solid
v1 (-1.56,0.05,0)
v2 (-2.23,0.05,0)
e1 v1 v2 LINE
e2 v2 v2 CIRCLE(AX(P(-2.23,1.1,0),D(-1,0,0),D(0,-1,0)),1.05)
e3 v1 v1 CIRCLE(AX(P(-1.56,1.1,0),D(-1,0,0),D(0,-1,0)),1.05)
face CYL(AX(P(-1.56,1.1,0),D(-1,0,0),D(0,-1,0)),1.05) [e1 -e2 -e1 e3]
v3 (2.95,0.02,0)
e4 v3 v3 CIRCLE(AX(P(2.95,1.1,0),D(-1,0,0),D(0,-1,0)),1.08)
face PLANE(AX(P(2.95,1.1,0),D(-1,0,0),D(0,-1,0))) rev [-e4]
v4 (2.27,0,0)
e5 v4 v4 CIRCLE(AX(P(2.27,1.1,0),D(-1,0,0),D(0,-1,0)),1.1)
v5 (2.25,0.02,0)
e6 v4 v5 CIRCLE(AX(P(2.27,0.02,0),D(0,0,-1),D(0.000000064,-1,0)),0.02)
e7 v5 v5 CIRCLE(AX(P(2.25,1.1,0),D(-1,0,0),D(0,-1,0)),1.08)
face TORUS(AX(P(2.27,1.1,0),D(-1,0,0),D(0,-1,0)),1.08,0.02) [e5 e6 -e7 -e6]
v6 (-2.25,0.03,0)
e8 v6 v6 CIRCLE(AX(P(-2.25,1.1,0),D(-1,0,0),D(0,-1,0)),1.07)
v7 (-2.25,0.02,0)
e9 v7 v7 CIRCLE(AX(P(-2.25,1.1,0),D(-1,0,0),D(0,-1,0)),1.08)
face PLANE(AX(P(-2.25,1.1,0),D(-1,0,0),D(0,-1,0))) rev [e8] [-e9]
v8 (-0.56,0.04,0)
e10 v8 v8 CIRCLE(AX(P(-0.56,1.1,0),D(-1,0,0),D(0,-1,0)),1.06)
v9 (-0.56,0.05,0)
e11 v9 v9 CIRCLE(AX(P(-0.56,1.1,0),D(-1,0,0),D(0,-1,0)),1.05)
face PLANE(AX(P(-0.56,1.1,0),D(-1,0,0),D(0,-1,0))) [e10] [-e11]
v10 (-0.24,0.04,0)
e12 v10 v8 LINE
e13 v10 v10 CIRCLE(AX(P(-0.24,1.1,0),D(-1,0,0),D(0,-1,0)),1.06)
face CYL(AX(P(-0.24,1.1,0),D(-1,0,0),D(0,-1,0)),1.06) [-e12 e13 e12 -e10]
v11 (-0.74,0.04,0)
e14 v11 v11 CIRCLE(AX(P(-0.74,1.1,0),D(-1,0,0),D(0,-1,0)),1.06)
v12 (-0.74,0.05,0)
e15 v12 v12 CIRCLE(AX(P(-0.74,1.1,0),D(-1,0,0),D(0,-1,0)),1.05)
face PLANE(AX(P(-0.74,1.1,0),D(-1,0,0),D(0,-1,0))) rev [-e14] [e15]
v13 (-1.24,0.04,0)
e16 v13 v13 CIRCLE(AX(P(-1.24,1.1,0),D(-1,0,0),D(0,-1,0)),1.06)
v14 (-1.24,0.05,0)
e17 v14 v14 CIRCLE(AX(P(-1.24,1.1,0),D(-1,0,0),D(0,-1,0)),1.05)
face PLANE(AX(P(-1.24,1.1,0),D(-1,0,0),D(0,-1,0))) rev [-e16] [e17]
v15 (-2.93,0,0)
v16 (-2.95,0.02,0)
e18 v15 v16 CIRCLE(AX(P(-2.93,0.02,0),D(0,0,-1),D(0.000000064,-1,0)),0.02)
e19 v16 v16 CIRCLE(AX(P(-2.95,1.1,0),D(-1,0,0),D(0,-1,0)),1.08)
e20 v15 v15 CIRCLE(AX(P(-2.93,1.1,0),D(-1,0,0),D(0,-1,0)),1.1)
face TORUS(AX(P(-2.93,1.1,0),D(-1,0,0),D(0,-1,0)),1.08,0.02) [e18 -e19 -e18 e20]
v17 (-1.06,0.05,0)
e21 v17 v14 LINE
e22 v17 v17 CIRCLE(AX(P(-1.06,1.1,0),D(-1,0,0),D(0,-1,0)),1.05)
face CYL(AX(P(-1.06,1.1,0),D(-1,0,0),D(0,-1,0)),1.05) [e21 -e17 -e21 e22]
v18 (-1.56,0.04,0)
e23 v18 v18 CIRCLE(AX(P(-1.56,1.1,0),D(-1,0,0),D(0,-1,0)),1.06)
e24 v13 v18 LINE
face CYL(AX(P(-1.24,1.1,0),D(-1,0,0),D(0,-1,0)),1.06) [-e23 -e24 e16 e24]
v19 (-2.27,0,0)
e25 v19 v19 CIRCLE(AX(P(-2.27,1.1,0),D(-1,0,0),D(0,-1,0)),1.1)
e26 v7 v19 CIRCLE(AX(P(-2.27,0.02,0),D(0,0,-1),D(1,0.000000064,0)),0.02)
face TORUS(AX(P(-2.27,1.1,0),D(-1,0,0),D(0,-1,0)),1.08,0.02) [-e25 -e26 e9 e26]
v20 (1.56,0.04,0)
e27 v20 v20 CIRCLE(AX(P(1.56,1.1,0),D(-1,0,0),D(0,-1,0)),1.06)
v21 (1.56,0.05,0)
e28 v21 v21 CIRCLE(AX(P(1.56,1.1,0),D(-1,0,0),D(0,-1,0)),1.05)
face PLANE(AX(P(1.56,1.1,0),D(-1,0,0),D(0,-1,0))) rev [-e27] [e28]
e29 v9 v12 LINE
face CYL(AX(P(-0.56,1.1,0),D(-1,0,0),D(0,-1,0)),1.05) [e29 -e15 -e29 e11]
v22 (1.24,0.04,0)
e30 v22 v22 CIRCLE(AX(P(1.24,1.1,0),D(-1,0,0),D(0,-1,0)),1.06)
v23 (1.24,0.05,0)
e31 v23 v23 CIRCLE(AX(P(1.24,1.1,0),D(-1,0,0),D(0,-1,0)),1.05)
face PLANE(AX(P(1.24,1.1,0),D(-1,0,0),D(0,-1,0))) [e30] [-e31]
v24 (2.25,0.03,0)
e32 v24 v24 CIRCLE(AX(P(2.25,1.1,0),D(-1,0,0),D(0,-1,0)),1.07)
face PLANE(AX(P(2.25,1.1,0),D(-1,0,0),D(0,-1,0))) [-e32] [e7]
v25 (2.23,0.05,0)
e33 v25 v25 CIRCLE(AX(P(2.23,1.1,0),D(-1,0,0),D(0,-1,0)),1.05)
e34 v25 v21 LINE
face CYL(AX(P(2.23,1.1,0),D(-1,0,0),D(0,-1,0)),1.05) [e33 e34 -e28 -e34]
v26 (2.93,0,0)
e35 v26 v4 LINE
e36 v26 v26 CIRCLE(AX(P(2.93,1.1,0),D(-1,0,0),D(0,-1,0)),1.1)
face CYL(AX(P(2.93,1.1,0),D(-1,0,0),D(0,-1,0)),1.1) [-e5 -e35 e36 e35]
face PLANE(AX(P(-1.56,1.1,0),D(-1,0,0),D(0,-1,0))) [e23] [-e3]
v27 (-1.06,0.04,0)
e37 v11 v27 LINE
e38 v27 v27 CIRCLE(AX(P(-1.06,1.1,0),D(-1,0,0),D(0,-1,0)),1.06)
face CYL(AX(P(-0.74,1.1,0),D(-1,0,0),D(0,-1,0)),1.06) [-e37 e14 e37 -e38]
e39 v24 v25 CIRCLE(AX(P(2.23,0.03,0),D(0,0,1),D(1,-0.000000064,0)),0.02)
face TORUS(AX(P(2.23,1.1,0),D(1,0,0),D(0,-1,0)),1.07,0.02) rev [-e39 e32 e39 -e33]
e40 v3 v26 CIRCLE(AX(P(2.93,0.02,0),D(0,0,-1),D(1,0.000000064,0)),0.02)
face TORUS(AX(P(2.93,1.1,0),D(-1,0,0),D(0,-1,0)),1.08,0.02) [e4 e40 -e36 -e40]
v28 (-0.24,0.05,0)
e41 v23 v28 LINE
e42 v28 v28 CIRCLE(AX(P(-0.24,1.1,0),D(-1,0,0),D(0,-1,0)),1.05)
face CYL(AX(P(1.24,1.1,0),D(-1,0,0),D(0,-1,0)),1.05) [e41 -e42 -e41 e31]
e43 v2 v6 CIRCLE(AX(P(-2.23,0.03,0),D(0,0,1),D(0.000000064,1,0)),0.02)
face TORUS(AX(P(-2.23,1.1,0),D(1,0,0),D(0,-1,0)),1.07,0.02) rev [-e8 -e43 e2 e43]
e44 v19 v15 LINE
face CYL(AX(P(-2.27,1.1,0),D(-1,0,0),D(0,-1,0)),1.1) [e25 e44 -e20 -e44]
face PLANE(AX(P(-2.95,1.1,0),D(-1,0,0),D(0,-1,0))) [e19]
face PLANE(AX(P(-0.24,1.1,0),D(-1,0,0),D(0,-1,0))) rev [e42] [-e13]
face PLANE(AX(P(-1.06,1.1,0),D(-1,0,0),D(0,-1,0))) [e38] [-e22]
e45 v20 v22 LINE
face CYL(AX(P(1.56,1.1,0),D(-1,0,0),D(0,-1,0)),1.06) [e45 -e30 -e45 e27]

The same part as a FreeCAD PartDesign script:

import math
import FreeCAD as App
import Part
import Sketcher

V = App.Vector
Q = App.Units.Quantity

doc = App.newDocument("Part")
body = doc.addObject("PartDesign::Body", "Body")

# Sketch on XY plane
sketch1 = body.newObject("Sketcher::SketchObject", "Sketch")
sketch1.AttachmentSupport = (doc.getObject("XY_Plane"), [""])
sketch1.MapMode = "FlatFace"
sketch1.addGeometry(Part.LineSegment(V(2.95, 1.1, 0), V(-2.95, 1.1, 0)), False)
sketch1.addGeometry(Part.LineSegment(V(-2.95, 1.1, 0), V(-2.95, 0.02, 0)), False)
sketch1.addGeometry(Part.ArcOfCircle(Part.Circle(V(-2.93, 0.02, 0), V(0, 0, 1), 0.02), math.radians(180), math.radians(270)), False)
sketch1.addGeometry(Part.LineSegment(V(-2.93, 0, 0), V(-2.27, 0, 0)), False)
sketch1.addGeometry(Part.ArcOfCircle(Part.Circle(V(-2.27, 0.02, 0), V(0, 0, 1), 0.02), math.radians(-90), math.radians(0)), False)
sketch1.addGeometry(Part.LineSegment(V(-2.25, 0.02, 0), V(-2.25, 0.03, 0)), False)
sketch1.addGeometry(Part.ArcOfCircle(Part.Circle(V(-2.23, 0.03, 0), V(0, 0, 1), 0.02), math.radians(90), math.radians(180)), False)
sketch1.addGeometry(Part.LineSegment(V(-2.23, 0.05, 0), V(-1.56, 0.05, 0)), False)
sketch1.addGeometry(Part.LineSegment(V(-1.56, 0.05, 0), V(-1.56, 0.04, 0)), False)
sketch1.addGeometry(Part.LineSegment(V(-1.56, 0.04, 0), V(-1.24, 0.04, 0)), False)
sketch1.addGeometry(Part.LineSegment(V(-1.24, 0.04, 0), V(-1.24, 0.05, 0)), False)
sketch1.addGeometry(Part.LineSegment(V(-1.24, 0.05, 0), V(-1.06, 0.05, 0)), False)
sketch1.addGeometry(Part.LineSegment(V(-1.06, 0.05, 0), V(-1.06, 0.04, 0)), False)
sketch1.addGeometry(Part.LineSegment(V(-1.06, 0.04, 0), V(-0.74, 0.04, 0)), False)
sketch1.addGeometry(Part.LineSegment(V(-0.74, 0.04, 0), V(-0.74, 0.05, 0)), False)
sketch1.addGeometry(Part.LineSegment(V(-0.74, 0.05, 0), V(-0.56, 0.05, 0)), False)
sketch1.addGeometry(Part.LineSegment(V(-0.56, 0.05, 0), V(-0.56, 0.04, 0)), False)
sketch1.addGeometry(Part.LineSegment(V(-0.56, 0.04, 0), V(-0.24, 0.04, 0)), False)
sketch1.addGeometry(Part.LineSegment(V(-0.24, 0.04, 0), V(-0.24, 0.05, 0)), False)
sketch1.addGeometry(Part.LineSegment(V(-0.24, 0.05, 0), V(1.24, 0.05, 0)), False)
sketch1.addGeometry(Part.LineSegment(V(1.24, 0.05, 0), V(1.24, 0.04, 0)), False)
sketch1.addGeometry(Part.LineSegment(V(1.24, 0.04, 0), V(1.56, 0.04, 0)), False)
sketch1.addGeometry(Part.LineSegment(V(1.56, 0.04, 0), V(1.56, 0.05, 0)), False)
sketch1.addGeometry(Part.LineSegment(V(1.56, 0.05, 0), V(2.23, 0.05, 0)), False)
sketch1.addGeometry(Part.ArcOfCircle(Part.Circle(V(2.23, 0.03, 0), V(0, 0, 1), 0.02), math.radians(0), math.radians(90)), False)
sketch1.addGeometry(Part.LineSegment(V(2.25, 0.03, 0), V(2.25, 0.02, 0)), False)
sketch1.addGeometry(Part.ArcOfCircle(Part.Circle(V(2.27, 0.02, 0), V(0, 0, 1), 0.02), math.radians(180), math.radians(270)), False)
sketch1.addGeometry(Part.LineSegment(V(2.27, 0, 0), V(2.93, 0, 0)), False)
sketch1.addGeometry(Part.ArcOfCircle(Part.Circle(V(2.93, 0.02, 0), V(0, 0, 1), 0.02), math.radians(-90), math.radians(0)), False)
sketch1.addGeometry(Part.LineSegment(V(2.95, 0.02, 0), V(2.95, 1.1, 0)), False)
sketch1.addGeometry(Part.LineSegment(V(2.95, 1.1, 0), V(-2.95, 1.1, 0)), True)  # axis
sketch1.addConstraint(Sketcher.Constraint("Coincident", 0, 2, 1, 1))
sketch1.addConstraint(Sketcher.Constraint("Tangent", 1, 2, 2, 1))
sketch1.addConstraint(Sketcher.Constraint("Tangent", 2, 2, 3, 1))
sketch1.addConstraint(Sketcher.Constraint("Tangent", 3, 2, 4, 1))
sketch1.addConstraint(Sketcher.Constraint("Tangent", 4, 2, 5, 1))
sketch1.addConstraint(Sketcher.Constraint("Tangent", 5, 2, 6, 2))
sketch1.addConstraint(Sketcher.Constraint("Tangent", 6, 1, 7, 1))
sketch1.addConstraint(Sketcher.Constraint("Coincident", 7, 2, 8, 1))
sketch1.addConstraint(Sketcher.Constraint("Coincident", 8, 2, 9, 1))
sketch1.addConstraint(Sketcher.Constraint("Coincident", 9, 2, 10, 1))
sketch1.addConstraint(Sketcher.Constraint("Coincident", 10, 2, 11, 1))
sketch1.addConstraint(Sketcher.Constraint("Coincident", 11, 2, 12, 1))
sketch1.addConstraint(Sketcher.Constraint("Coincident", 12, 2, 13, 1))
sketch1.addConstraint(Sketcher.Constraint("Coincident", 13, 2, 14, 1))
sketch1.addConstraint(Sketcher.Constraint("Coincident", 14, 2, 15, 1))
sketch1.addConstraint(Sketcher.Constraint("Coincident", 15, 2, 16, 1))
sketch1.addConstraint(Sketcher.Constraint("Coincident", 16, 2, 17, 1))
sketch1.addConstraint(Sketcher.Constraint("Coincident", 17, 2, 18, 1))
sketch1.addConstraint(Sketcher.Constraint("Coincident", 18, 2, 19, 1))
sketch1.addConstraint(Sketcher.Constraint("Coincident", 19, 2, 20, 1))
sketch1.addConstraint(Sketcher.Constraint("Coincident", 20, 2, 21, 1))
sketch1.addConstraint(Sketcher.Constraint("Coincident", 21, 2, 22, 1))
sketch1.addConstraint(Sketcher.Constraint("Coincident", 22, 2, 23, 1))
sketch1.addConstraint(Sketcher.Constraint("Tangent", 23, 2, 24, 2))
sketch1.addConstraint(Sketcher.Constraint("Tangent", 24, 1, 25, 1))
sketch1.addConstraint(Sketcher.Constraint("Tangent", 25, 2, 26, 1))
sketch1.addConstraint(Sketcher.Constraint("Tangent", 26, 2, 27, 1))
sketch1.addConstraint(Sketcher.Constraint("Tangent", 27, 2, 28, 1))
sketch1.addConstraint(Sketcher.Constraint("Tangent", 28, 2, 29, 1))
sketch1.addConstraint(Sketcher.Constraint("Coincident", 29, 2, 0, 1))
sketch1.addConstraint(Sketcher.Constraint("Horizontal", 0))
sketch1.addConstraint(Sketcher.Constraint("Vertical", 1))
sketch1.addConstraint(Sketcher.Constraint("Horizontal", 3))
sketch1.addConstraint(Sketcher.Constraint("Vertical", 5))
sketch1.addConstraint(Sketcher.Constraint("Horizontal", 7))
sketch1.addConstraint(Sketcher.Constraint("Vertical", 8))
sketch1.addConstraint(Sketcher.Constraint("Horizontal", 9))
sketch1.addConstraint(Sketcher.Constraint("Vertical", 10))
sketch1.addConstraint(Sketcher.Constraint("Horizontal", 11))
sketch1.addConstraint(Sketcher.Constraint("Vertical", 12))
sketch1.addConstraint(Sketcher.Constraint("Horizontal", 13))
sketch1.addConstraint(Sketcher.Constraint("Vertical", 14))
sketch1.addConstraint(Sketcher.Constraint("Horizontal", 15))
sketch1.addConstraint(Sketcher.Constraint("Vertical", 16))
sketch1.addConstraint(Sketcher.Constraint("Horizontal", 17))
sketch1.addConstraint(Sketcher.Constraint("Vertical", 18))
sketch1.addConstraint(Sketcher.Constraint("Horizontal", 19))
sketch1.addConstraint(Sketcher.Constraint("Vertical", 20))
sketch1.addConstraint(Sketcher.Constraint("Horizontal", 21))
sketch1.addConstraint(Sketcher.Constraint("Vertical", 22))
sketch1.addConstraint(Sketcher.Constraint("Horizontal", 23))
sketch1.addConstraint(Sketcher.Constraint("Vertical", 25))
sketch1.addConstraint(Sketcher.Constraint("Horizontal", 27))
sketch1.addConstraint(Sketcher.Constraint("Vertical", 29))
sketch1.addConstraint(Sketcher.Constraint("Horizontal", 30))
sketch1.addConstraint(Sketcher.Constraint("Coincident", 30, 1, 29, 2))
sketch1.addConstraint(Sketcher.Constraint("Equal", 2, 4))
sketch1.addConstraint(Sketcher.Constraint("Equal", 4, 6))
sketch1.addConstraint(Sketcher.Constraint("Equal", 6, 24))
sketch1.addConstraint(Sketcher.Constraint("Equal", 24, 26))
sketch1.addConstraint(Sketcher.Constraint("Equal", 26, 28))
sketch1.addConstraint(Sketcher.Constraint("Symmetric", 3, 2, 26, 2, -1, 1))
sketch1.addConstraint(Sketcher.Constraint("Symmetric", 2, 3, 28, 3, -2))
sketch1.addConstraint(Sketcher.Constraint("Symmetric", 10, 2, 19, 2, -2))
sketch1.addConstraint(Sketcher.Constraint("Symmetric", 8, 2, 21, 2, -2))
sketch1.addConstraint(Sketcher.Constraint("Horizontal", 6, 3, 24, 3))
sketch1.addConstraint(Sketcher.Constraint("Horizontal", 7, 2, 10, 2))
sketch1.addConstraint(Sketcher.Constraint("Horizontal", 9, 2, 12, 2))
sketch1.addConstraint(Sketcher.Constraint("Horizontal", 11, 2, 14, 2))
sketch1.addConstraint(Sketcher.Constraint("Horizontal", 13, 2, 16, 2))
sketch1.addConstraint(Sketcher.Constraint("Vertical", 1, 2, 30, 2))
sketch1.addConstraint(Sketcher.Constraint("Equal", 9, 13))
sketch1.addConstraint(Sketcher.Constraint("Equal", 11, 15))
sketch1.addConstraint(Sketcher.Constraint("Equal", 13, 17))
sketch1.addConstraint(Sketcher.Constraint("Equal", 5, 8))
sketch1.addConstraint(Sketcher.Constraint("Radius", 2, Q("0.02 mm")))
sketch1.addConstraint(Sketcher.Constraint("DistanceX", 0, 2, 0, 1, Q("5.9 mm")))
sketch1.addConstraint(Sketcher.Constraint("DistanceX", 3, 1, 3, 2, Q("0.66 mm")))
sketch1.addConstraint(Sketcher.Constraint("DistanceX", 7, 1, 7, 2, Q("0.67 mm")))
sketch1.addConstraint(Sketcher.Constraint("DistanceX", 9, 1, 9, 2, Q("0.32 mm")))
sketch1.addConstraint(Sketcher.Constraint("DistanceX", 11, 1, 11, 2, Q("0.18 mm")))
sketch1.addConstraint(Sketcher.Constraint("DistanceY", 1, 2, 1, 1, Q("1.08 mm")))
sketch1.addConstraint(Sketcher.Constraint("DistanceY", 5, 1, 5, 2, Q("0.01 mm")))
revolution = body.newObject("PartDesign::Revolution", "Revolution")
revolution.Profile = sketch1
revolution.ReferenceAxis = (sketch1, ["Axis0"])
revolution.Angle = 360

doc.recompute()
